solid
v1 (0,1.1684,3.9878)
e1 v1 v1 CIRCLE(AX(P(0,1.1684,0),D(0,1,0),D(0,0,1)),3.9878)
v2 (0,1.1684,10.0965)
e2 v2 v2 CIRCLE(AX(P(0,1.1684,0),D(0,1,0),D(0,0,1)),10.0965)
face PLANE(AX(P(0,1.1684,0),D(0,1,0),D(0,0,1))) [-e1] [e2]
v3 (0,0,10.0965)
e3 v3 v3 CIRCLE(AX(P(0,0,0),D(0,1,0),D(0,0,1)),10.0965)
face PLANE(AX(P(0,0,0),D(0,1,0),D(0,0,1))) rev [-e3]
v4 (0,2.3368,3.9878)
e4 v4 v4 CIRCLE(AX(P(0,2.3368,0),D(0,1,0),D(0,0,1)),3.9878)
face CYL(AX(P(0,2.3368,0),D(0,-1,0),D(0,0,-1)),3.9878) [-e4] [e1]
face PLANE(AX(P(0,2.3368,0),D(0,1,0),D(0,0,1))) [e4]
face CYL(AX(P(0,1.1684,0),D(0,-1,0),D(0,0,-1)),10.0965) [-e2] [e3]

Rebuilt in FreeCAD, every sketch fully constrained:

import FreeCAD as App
import Part
import Sketcher
from FreeCAD import Vector
Q = App.Units.Quantity

doc = App.newDocument("Part")
body = doc.addObject("PartDesign::Body", "Body")

# Sketch on XZ plane
sketch1 = doc.addObject("Sketcher::SketchObject", "Sketch")
body.addObject(sketch1)
sketch1.AttachmentSupport = (doc.XZ_Plane, [""])
sketch1.MapMode = "FlatFace"
sketch1.addGeometry(Part.Circle(Vector(0, 0, 0), Vector(0, 0, 1), 10.0965), False)
sketch1.addConstraint([
    Sketcher.Constraint("Coincident", 0, 3, -1, 1),
    Sketcher.Constraint("Diameter", 0, Q("0.795 in")),
])
pad1 = doc.addObject("PartDesign::Pad", "Pad")
body.addObject(pad1)
pad1.Profile = sketch1
pad1.Length = Q("0.046 in")
pad1.Reversed = True

# Sketch on XZ plane
sketch2 = doc.addObject("Sketcher::SketchObject", "Sketch001")
body.addObject(sketch2)
sketch2.AttachmentSupport = (doc.XZ_Plane, [""])
sketch2.MapMode = "FlatFace"
sketch2.AttachmentOffset = App.Placement(Vector(0, 0, -0.046 * 25.4), App.Rotation())
sketch2.addGeometry(Part.Circle(Vector(0, 0, 0), Vector(0, 0, 1), 3.9878), False)
sketch2.addConstraint([
    Sketcher.Constraint("Coincident", 0, 3, -1, 1),
    Sketcher.Constraint("Diameter", 0, Q("0.314 in")),
])
pad2 = doc.addObject("PartDesign::Pad", "Pad001")
body.addObject(pad2)
pad2.Profile = sketch2
pad2.Length = Q("0.046 in")
pad2.Reversed = True

doc.recompute()
